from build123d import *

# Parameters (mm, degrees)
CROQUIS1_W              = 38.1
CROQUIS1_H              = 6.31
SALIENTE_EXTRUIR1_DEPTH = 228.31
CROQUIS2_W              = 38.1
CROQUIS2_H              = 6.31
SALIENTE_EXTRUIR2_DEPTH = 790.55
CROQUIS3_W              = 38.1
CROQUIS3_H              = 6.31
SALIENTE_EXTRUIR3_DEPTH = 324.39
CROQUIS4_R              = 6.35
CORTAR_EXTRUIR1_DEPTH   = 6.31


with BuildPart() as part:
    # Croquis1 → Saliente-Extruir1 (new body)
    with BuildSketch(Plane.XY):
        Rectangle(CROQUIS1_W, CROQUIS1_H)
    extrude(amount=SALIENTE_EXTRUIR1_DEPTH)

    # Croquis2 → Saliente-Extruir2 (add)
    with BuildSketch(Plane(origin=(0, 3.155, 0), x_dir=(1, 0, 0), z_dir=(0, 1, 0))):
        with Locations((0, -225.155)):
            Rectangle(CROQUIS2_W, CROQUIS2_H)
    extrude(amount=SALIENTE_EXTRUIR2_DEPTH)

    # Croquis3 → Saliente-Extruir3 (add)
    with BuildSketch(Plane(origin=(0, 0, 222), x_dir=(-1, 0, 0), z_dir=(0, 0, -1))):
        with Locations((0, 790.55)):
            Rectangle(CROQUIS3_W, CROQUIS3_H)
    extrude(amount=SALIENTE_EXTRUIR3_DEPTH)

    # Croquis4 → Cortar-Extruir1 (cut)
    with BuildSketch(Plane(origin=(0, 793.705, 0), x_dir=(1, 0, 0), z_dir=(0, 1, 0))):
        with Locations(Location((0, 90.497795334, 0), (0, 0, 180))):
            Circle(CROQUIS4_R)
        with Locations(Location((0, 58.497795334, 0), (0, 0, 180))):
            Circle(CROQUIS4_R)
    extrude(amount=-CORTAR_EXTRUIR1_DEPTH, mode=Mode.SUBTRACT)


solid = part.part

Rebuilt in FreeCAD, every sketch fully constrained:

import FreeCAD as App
import Part
import Sketcher
Q = App.Units.Quantity


def add_polygon(sketch, points):
    """Adds a closed chain of lines whose ends are joined by coincident constraints."""
    first, n = sketch.GeometryCount, len(points)
    for a, b in zip(points, points[1:] + points[:1]):
        sketch.addGeometry(Part.LineSegment(App.Vector(*a, 0), App.Vector(*b, 0)), False)
    for i in range(n):
        sketch.addConstraint(Sketcher.Constraint("Coincident", first + i, 2, first + (i + 1) % n, 1))

doc = App.newDocument("Part")
body = doc.addObject("PartDesign::Body", "Body")

sketch1 = body.newObject("Sketcher::SketchObject", "Sketch")
sketch1.AttachmentSupport = (doc.getObject("XY_Plane"), [""])
sketch1.MapMode = "FlatFace"
add_polygon(sketch1, [(-19, 3), (-19, -3), (19, -3), (19, 3)])
sketch1.addConstraint([
    Sketcher.Constraint("Vertical", 0),
    Sketcher.Constraint("Horizontal", 1),
    Sketcher.Constraint("Vertical", 2),
    Sketcher.Constraint("Horizontal", 3),
    Sketcher.Constraint("Symmetric", 0, 2, 2, 2, -1, 1),
    Sketcher.Constraint("DistanceX", 1, 1, 1, 2, Q("1.5 in")),
    Sketcher.Constraint("DistanceY", 0, 2, 0, 1, Q("6.31 mm")),
])
pad1 = body.newObject("PartDesign::Pad", "Pad")
pad1.Profile = sketch1
pad1.Length = 228.31

sketch2 = body.newObject("Sketcher::SketchObject", "Sketch001")
sketch2.AttachmentSupport = (doc.getObject("XZ_Plane"), [""])
sketch2.MapMode = "FlatFace"
sketch2.AttachmentOffset = App.Placement(App.Vector(0, 0, -3.155), App.Rotation())
add_polygon(sketch2, [(-19, 222), (-19, 228), (19, 228), (19, 222)])
sketch2.addConstraint([
    Sketcher.Constraint("Vertical", 0),
    Sketcher.Constraint("Horizontal", 1),
    Sketcher.Constraint("Vertical", 2),
    Sketcher.Constraint("Horizontal", 3),
    Sketcher.Constraint("DistanceX", 1, 1, 1, 2, Q("1.5 in")),
    Sketcher.Constraint("DistanceX", 0, 2, -1, 1, Q("0.75 in")),
    Sketcher.Constraint("DistanceY", 0, 1, 0, 2, Q("6.31 mm")),
    Sketcher.Constraint("DistanceY", -1, 1, 0, 2, Q("228.31 mm")),
])
pad2 = body.newObject("PartDesign::Pad", "Pad001")
pad2.Profile = sketch2
pad2.Length = 790.55
pad2.Reversed = True

sketch3 = body.newObject("Sketcher::SketchObject", "Sketch002")
sketch3.AttachmentSupport = (doc.getObject("XY_Plane"), [""])
sketch3.MapMode = "FlatFace"
sketch3.AttachmentOffset = App.Placement(App.Vector(0, 0, 222), App.Rotation())
add_polygon(sketch3, [(19, 794), (19, 787), (-19, 787), (-19, 794)])
sketch3.addConstraint([
    Sketcher.Constraint("Vertical", 0),
    Sketcher.Constraint("Horizontal", 1),
    Sketcher.Constraint("Vertical", 2),
    Sketcher.Constraint("Horizontal", 3),
    Sketcher.Constraint("DistanceX", 1, 2, 1, 1, Q("1.5 in")),
    Sketcher.Constraint("DistanceX", -1, 1, 0, 2, Q("0.75 in")),
    Sketcher.Constraint("DistanceY", 0, 2, 0, 1, Q("6.31 mm")),
    Sketcher.Constraint("DistanceY", -1, 1, 0, 2, Q("787.395 mm")),
])
pad3 = body.newObject("PartDesign::Pad", "Pad002")
pad3.Profile = sketch3
pad3.Length = 324.39
pad3.Reversed = True

sketch4 = body.newObject("Sketcher::SketchObject", "Sketch003")
sketch4.AttachmentSupport = (doc.getObject("XZ_Plane"), [""])
sketch4.MapMode = "FlatFace"
sketch4.AttachmentOffset = App.Placement(App.Vector(0, 0, -793.705), App.Rotation())
sketch4.addGeometry([
    Part.Circle(App.Vector(0, -90, 0), App.Vector(0, 0, 1), 6),
    Part.Circle(App.Vector(0, -58, 0), App.Vector(0, 0, 1), 6),
], False)
sketch4.addConstraint([
    Sketcher.Constraint("Equal", 0, 1),
    Sketcher.Constraint("PointOnObject", 0, 3, -2),
    Sketcher.Constraint("PointOnObject", 1, 3, -2),
    Sketcher.Constraint("Diameter", 0, Q("0.5 in")),
    Sketcher.Constraint("DistanceY", 0, 3, 1, 3, Q("32 mm")),
    Sketcher.Constraint("DistanceY", 0, 3, -1, 1, Q("90.497795 mm")),
])
pocket1 = body.newObject("PartDesign::Pocket", "Pocket")
pocket1.Profile = sketch4
pocket1.Length = 6.31
pocket1.Reversed = True

doc.recompute()
